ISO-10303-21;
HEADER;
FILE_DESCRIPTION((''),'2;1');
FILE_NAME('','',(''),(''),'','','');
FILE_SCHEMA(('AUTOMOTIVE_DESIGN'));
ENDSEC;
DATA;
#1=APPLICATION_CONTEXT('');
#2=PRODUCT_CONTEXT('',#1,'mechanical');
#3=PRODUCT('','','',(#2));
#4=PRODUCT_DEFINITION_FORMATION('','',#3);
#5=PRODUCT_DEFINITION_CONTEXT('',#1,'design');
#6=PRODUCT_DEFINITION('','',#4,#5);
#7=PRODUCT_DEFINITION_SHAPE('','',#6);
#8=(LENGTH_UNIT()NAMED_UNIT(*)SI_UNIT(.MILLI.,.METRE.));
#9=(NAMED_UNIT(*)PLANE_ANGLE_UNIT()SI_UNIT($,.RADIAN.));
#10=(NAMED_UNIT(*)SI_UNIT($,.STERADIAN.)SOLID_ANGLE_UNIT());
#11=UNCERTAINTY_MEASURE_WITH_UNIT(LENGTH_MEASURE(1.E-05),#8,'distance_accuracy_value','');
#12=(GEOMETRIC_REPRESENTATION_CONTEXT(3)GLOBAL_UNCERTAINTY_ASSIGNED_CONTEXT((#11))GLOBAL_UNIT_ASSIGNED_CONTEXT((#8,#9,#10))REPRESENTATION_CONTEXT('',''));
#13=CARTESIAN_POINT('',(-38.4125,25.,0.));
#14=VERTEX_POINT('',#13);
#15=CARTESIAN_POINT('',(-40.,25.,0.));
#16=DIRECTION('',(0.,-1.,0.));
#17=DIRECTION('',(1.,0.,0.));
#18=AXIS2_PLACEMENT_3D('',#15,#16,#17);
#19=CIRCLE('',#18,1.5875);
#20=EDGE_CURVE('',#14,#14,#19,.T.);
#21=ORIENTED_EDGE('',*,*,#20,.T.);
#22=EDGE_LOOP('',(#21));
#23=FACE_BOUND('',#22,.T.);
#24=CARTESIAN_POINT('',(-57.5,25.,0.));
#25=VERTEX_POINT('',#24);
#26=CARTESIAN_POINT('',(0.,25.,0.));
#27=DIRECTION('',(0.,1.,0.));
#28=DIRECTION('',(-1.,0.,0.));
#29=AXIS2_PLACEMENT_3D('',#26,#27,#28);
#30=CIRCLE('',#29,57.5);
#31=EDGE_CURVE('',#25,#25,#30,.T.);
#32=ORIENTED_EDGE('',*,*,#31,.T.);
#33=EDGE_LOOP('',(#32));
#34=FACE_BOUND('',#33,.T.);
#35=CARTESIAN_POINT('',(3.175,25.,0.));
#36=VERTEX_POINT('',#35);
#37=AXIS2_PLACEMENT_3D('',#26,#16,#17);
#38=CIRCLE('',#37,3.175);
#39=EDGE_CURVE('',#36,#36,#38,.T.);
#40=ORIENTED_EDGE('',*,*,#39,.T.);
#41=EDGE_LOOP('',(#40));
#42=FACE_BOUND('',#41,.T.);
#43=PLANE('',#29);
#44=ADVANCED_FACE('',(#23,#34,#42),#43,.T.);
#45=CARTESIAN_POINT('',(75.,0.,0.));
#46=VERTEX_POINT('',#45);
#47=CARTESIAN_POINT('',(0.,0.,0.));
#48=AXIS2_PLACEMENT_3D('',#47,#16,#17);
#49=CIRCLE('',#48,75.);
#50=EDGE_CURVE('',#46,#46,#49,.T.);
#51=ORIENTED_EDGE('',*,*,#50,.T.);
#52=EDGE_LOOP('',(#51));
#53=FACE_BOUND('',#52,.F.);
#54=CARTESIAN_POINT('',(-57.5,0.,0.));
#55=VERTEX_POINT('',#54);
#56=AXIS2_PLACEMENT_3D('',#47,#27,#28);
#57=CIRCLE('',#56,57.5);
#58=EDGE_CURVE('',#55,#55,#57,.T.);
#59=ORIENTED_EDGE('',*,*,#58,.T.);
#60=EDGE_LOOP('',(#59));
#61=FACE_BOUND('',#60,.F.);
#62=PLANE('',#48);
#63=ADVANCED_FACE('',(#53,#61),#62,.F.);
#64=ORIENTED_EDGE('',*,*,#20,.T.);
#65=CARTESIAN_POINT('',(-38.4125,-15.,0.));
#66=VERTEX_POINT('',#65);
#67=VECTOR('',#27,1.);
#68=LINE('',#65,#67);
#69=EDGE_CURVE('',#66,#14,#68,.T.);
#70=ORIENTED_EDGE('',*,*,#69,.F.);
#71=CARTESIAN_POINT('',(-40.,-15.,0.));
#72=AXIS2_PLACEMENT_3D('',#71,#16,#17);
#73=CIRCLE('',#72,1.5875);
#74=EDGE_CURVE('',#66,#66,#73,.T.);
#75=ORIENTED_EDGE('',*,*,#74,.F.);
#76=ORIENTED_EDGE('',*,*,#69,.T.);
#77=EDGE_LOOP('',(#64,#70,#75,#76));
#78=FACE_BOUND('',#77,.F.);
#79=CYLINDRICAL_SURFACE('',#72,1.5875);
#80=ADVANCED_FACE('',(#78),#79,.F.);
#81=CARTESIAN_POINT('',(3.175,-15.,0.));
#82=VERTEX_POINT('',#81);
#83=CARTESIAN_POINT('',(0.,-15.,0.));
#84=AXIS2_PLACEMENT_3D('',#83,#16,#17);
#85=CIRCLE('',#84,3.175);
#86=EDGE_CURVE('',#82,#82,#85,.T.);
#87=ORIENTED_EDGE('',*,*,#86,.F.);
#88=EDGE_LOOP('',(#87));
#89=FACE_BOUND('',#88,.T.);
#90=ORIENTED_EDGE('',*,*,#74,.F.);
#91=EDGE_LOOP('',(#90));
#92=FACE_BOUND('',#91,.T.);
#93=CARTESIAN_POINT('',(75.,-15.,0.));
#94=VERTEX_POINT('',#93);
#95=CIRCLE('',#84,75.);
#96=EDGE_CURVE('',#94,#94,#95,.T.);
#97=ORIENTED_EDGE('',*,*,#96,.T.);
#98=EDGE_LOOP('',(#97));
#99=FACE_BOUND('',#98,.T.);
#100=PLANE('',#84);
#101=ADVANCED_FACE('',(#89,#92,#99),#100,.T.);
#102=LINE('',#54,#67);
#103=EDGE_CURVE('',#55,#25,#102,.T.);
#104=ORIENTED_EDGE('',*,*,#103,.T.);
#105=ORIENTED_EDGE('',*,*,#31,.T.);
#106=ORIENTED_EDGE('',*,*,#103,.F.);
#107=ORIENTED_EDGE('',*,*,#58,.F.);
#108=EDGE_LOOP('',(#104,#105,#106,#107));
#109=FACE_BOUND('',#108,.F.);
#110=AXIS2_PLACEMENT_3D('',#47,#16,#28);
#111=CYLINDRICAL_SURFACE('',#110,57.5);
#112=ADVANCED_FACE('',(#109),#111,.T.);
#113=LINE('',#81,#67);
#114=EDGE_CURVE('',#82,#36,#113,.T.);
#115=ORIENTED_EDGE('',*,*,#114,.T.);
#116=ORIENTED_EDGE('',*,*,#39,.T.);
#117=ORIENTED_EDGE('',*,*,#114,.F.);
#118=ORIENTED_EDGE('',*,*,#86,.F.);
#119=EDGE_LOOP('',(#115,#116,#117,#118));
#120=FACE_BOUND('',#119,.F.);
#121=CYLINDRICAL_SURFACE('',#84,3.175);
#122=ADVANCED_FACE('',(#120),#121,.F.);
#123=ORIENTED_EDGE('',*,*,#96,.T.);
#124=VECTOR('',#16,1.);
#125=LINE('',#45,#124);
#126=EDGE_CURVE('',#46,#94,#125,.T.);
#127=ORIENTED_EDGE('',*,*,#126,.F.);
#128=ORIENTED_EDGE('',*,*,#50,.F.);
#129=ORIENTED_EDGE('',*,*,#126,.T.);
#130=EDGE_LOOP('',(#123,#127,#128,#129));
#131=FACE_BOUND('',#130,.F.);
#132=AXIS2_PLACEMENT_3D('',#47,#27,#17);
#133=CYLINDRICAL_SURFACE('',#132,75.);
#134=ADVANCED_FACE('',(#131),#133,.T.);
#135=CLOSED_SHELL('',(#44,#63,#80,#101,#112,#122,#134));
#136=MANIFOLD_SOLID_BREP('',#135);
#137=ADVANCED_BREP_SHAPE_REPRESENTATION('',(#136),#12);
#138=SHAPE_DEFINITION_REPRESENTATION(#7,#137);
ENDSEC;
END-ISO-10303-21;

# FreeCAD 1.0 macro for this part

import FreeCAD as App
import Part
import Sketcher
from FreeCAD import Vector
Q = App.Units.Quantity

doc = App.newDocument("Part")
params = doc.addObject("Spreadsheet::Sheet", "Params")
for row, (alias, value) in enumerate([
    ("sketch1_diameter", "150 mm"),
    ("pad1_length", "15 mm"),
    ("sketch2_diameter", "115 mm"),
    ("pad2_length", "25 mm"),
    ("sketch3_diameter", "6.35 mm"),
], start=1):
    params.set(f"A{row}", alias)
    params.set(f"B{row}", "=" + value)
    params.setAlias(f"B{row}", alias)

body = doc.addObject("PartDesign::Body", "Body")

# Sketch on XZ plane
sketch1 = body.newObject("Sketcher::SketchObject", "Sketch")
sketch1.AttachmentSupport = (doc.getObject("XZ_Plane"), [""])
sketch1.MapMode = "FlatFace"
sketch1.addGeometry(Part.Circle(Vector(0, 0, 0), Vector(0, 0, 1), 75), False)
sketch1.addConstraint(Sketcher.Constraint("Coincident", 0, 3, -1, 1))
sketch1.addConstraint(Sketcher.Constraint("Diameter", 0, Q("150 mm")))
sketch1.setExpression("Constraints[1]", "Params.sketch1_diameter")
pad1 = body.newObject("PartDesign::Pad", "Pad")
pad1.Profile = sketch1
pad1.setExpression("Length", "Params.pad1_length")

# Sketch on XZ plane
sketch2 = body.newObject("Sketcher::SketchObject", "Sketch001")
sketch2.AttachmentSupport = (doc.getObject("XZ_Plane"), [""])
sketch2.MapMode = "FlatFace"
sketch2.addGeometry(Part.Circle(Vector(0, 0, 0), Vector(0, 0, 1), 58), False)
sketch2.addConstraint(Sketcher.Constraint("Coincident", 0, 3, -1, 1))
sketch2.addConstraint(Sketcher.Constraint("Diameter", 0, Q("115 mm")))
sketch2.setExpression("Constraints[1]", "Params.sketch2_diameter")
pad2 = body.newObject("PartDesign::Pad", "Pad001")
pad2.Profile = sketch2
pad2.setExpression("Length", "Params.pad2_length")
pad2.Reversed = True

# Sketch on XZ plane
sketch3 = body.newObject("Sketcher::SketchObject", "Sketch002")
sketch3.AttachmentSupport = (doc.getObject("XZ_Plane"), [""])
sketch3.MapMode = "FlatFace"
sketch3.AttachmentOffset = App.Placement(Vector(0, 0, 15), App.Rotation())
sketch3.addGeometry(Part.Circle(Vector(0, 0, 0), Vector(0, 0, 1), 3.2), False)
sketch3.addGeometry(Part.Circle(Vector(-40, 0, 0), Vector(0, 0, 1), 1.6), False)
sketch3.addConstraint(Sketcher.Constraint("Coincident", 0, 3, -1, 1))
sketch3.addConstraint(Sketcher.Constraint("PointOnObject", 1, 3, -1))
sketch3.addConstraint(Sketcher.Constraint("Diameter", 0, Q("6.35 mm")))
sketch3.addConstraint(Sketcher.Constraint("Diameter", 1, Q("3.175 mm")))
sketch3.addConstraint(Sketcher.Constraint("DistanceX", 1, 3, -1, 1, Q("40 mm")))
sketch3.setExpression("Constraints[2]", "Params.sketch3_diameter")
pocket1 = body.newObject("PartDesign::Pocket", "Pocket")
pocket1.Profile = sketch3
pocket1.Type = "ThroughAll"

doc.recompute()
